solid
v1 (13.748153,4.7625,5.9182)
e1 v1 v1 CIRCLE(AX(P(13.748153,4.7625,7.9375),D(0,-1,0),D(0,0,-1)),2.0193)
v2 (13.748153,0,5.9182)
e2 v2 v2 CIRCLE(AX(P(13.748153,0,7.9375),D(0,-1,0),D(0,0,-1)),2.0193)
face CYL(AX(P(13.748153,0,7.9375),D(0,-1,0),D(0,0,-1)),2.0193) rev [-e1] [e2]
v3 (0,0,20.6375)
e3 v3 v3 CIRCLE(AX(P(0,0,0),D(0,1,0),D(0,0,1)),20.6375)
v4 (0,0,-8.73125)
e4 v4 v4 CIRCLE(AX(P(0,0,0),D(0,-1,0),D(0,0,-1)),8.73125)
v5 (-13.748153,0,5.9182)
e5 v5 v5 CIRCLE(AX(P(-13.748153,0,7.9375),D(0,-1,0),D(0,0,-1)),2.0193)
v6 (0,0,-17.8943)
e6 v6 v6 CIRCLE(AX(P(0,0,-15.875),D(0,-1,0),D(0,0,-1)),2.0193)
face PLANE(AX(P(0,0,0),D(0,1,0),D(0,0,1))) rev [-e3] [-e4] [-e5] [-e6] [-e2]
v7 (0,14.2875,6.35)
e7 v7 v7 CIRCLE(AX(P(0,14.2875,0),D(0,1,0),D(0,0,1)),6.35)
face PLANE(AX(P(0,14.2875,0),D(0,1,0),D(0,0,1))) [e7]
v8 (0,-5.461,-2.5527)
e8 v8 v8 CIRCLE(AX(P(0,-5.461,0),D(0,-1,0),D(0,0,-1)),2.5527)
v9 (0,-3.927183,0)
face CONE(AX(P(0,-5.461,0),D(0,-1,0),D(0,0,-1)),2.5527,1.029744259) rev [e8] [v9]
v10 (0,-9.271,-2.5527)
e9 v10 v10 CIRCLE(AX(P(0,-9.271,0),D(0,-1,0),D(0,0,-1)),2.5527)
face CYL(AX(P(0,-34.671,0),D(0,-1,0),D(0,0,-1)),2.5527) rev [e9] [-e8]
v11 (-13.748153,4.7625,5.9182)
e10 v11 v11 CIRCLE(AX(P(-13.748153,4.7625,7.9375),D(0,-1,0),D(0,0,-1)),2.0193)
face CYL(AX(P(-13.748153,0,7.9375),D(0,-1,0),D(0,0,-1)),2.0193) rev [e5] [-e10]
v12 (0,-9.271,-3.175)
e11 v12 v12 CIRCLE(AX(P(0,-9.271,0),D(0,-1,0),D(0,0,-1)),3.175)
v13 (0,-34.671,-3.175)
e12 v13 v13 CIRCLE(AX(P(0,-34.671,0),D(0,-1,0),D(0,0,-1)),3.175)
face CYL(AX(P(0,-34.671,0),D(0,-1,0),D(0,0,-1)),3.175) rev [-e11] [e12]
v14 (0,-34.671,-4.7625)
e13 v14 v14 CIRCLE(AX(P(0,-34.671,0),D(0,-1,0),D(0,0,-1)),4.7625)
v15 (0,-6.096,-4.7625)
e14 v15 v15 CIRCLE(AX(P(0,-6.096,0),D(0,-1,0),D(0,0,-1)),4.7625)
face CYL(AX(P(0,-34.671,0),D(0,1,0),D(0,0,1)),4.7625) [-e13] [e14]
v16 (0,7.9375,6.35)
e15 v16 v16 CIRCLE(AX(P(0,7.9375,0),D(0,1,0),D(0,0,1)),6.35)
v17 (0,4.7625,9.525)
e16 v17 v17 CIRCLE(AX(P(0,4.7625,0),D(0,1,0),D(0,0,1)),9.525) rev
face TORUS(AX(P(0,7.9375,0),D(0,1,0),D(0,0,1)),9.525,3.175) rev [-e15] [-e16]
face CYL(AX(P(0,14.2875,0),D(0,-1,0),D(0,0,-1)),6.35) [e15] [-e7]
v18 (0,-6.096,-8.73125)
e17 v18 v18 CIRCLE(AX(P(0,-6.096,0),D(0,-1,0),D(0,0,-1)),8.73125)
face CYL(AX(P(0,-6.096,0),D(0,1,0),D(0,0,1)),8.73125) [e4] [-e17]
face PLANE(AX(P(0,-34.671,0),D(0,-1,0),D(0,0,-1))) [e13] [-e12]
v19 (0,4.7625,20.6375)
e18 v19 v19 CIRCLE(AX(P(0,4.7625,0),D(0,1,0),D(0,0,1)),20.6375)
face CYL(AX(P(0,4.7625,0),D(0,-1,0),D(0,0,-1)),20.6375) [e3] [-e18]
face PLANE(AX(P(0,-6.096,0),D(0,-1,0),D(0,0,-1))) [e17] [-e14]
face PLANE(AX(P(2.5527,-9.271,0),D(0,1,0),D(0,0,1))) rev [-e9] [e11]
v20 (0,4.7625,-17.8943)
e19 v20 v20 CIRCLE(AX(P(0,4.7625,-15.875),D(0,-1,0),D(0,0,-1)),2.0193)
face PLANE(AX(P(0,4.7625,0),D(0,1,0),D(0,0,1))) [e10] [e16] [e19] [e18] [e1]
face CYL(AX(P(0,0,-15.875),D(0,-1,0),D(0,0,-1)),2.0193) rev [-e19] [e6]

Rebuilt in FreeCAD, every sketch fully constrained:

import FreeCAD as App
import Part
import Sketcher
Q = App.Units.Quantity


def edges_at(feature, points):
    """Names of the edges that pass closest to the given points."""
    edges = feature.Shape.Edges
    near = lambda p: min(range(len(edges)), key=lambda i: edges[i].distToShape(Part.Vertex(*p))[0])
    return sorted({f"Edge{near(p) + 1}" for p in points})

doc = App.newDocument("Part")
body = doc.addObject("PartDesign::Body", "Body")

sketch1 = body.newObject("Sketcher::SketchObject", "Sketch")
sketch1.AttachmentSupport = (doc.getObject("XZ_Plane"), [""])
sketch1.MapMode = "FlatFace"
sketch1.addGeometry(Part.Circle(App.Vector(0, 0, 0), App.Vector(0, 0, 1), 20.6375), False)
sketch1.addConstraint([
    Sketcher.Constraint("Coincident", 0, 3, -1, 1),
    Sketcher.Constraint("Diameter", 0, Q("1.625 in")),
])
pad1 = body.newObject("PartDesign::Pad", "Pad")
pad1.Profile = sketch1
pad1.Length = Q("0.1875 in")
pad1.Reversed = True

sketch2 = body.newObject("Sketcher::SketchObject", "Sketch001")
sketch2.AttachmentSupport = (doc.getObject("XZ_Plane"), [""])
sketch2.MapMode = "FlatFace"
sketch2.addGeometry(Part.Circle(App.Vector(0, 0, 0), App.Vector(0, 0, 1), 8.73125), False)
sketch2.addConstraint([
    Sketcher.Constraint("Coincident", 0, 3, -1, 1),
    Sketcher.Constraint("Diameter", 0, Q("0.6875 in")),
])
pad2 = body.newObject("PartDesign::Pad", "Pad001")
pad2.Profile = sketch2
pad2.Length = Q("0.24 in")

sketch3 = body.newObject("Sketcher::SketchObject", "Sketch002")
sketch3.AttachmentSupport = (doc.getObject("XZ_Plane"), [""])
sketch3.MapMode = "FlatFace"
sketch3.AttachmentOffset = App.Placement(App.Vector(0, 0, 0.24 * 25.4), App.Rotation())
sketch3.addGeometry(Part.Circle(App.Vector(0, 0, 0), App.Vector(0, 0, 1), 4.7625), False)
sketch3.addConstraint([
    Sketcher.Constraint("Coincident", 0, 3, -1, 1),
    Sketcher.Constraint("Diameter", 0, Q("0.375 in")),
])
pad3 = body.newObject("PartDesign::Pad", "Pad002")
pad3.Profile = sketch3
pad3.Length = Q("1.125 in")

sketch4 = body.newObject("Sketcher::SketchObject", "Sketch003")
sketch4.AttachmentSupport = (doc.getObject("XZ_Plane"), [""])
sketch4.MapMode = "FlatFace"
sketch4.AttachmentOffset = App.Placement(App.Vector(0, 0, 1.365 * 25.4), App.Rotation())
sketch4.addGeometry(Part.Circle(App.Vector(0, 0, 0), App.Vector(0, 0, 1), 2.5527), False)
sketch4.addConstraint([
    Sketcher.Constraint("Coincident", 0, 3, -1, 1),
    Sketcher.Constraint("Diameter", 0, Q("0.201 in")),
])
doc.recompute()
hole = body.newObject("PartDesign::Hole", "Hole")
hole.Profile = sketch4
hole.ThreadType = "None"
hole.Diameter = Q("0.201 in")
hole.DepthType = "Dimension"
hole.Depth = Q("1.15 in")
hole.DrillPoint = "Angled"
hole.DrillPointAngle = 118
hole.HoleCutType = "Counterbore"
hole.HoleCutDiameter = Q("0.25 in")
hole.HoleCutDepth = Q("1 in")

sketch5 = body.newObject("Sketcher::SketchObject", "Sketch004")
sketch5.AttachmentSupport = (doc.getObject("XZ_Plane"), [""])
sketch5.MapMode = "FlatFace"
sketch5.addGeometry([
    Part.Circle(App.Vector(13.748153, 7.9375, 0), App.Vector(0, 0, 1), 2.0193),
    Part.Circle(App.Vector(0, -15.875, 0), App.Vector(0, 0, 1), 2.0193),
    Part.Circle(App.Vector(-13.748153, 7.9375, 0), App.Vector(0, 0, 1), 2.0193),
], False)
sketch5.addConstraint([
    Sketcher.Constraint("Equal", 0, 1),
    Sketcher.Constraint("Equal", 1, 2),
    Sketcher.Constraint("Symmetric", 0, 3, 2, 3, -2),
    Sketcher.Constraint("PointOnObject", 1, 3, -2),
    Sketcher.Constraint("Diameter", 0, Q("0.159 in")),
    Sketcher.Constraint("DistanceY", -1, 1, 0, 3, Q("0.3125 in")),
    Sketcher.Constraint("DistanceY", 1, 3, -1, 1, Q("0.625 in")),
    Sketcher.Constraint("DistanceX", -1, 1, 0, 3, 13.748153),
])
doc.recompute()
hole2 = body.newObject("PartDesign::Hole", "Hole001")
hole2.Profile = sketch5
hole2.ThreadType = "None"
hole2.Diameter = Q("0.159 in")
hole2.DepthType = "ThroughAll"

sketch6 = body.newObject("Sketcher::SketchObject", "Sketch005")
sketch6.AttachmentSupport = (doc.getObject("XZ_Plane"), [""])
sketch6.MapMode = "FlatFace"
sketch6.AttachmentOffset = App.Placement(App.Vector(0, 0, -0.1875 * 25.4), App.Rotation())
sketch6.addGeometry(Part.Circle(App.Vector(0, 0, 0), App.Vector(0, 0, 1), 6.35), False)
sketch6.addConstraint([
    Sketcher.Constraint("Coincident", 0, 3, -1, 1),
    Sketcher.Constraint("Diameter", 0, Q("0.5 in")),
])
pad4 = body.newObject("PartDesign::Pad", "Pad003")
pad4.Profile = sketch6
pad4.Length = Q("0.375 in")
pad4.Reversed = True
doc.recompute()

fillet = body.newObject("PartDesign::Fillet", "Fillet")
fillet.Base = (pad4, edges_at(pad4, [(-6.35, 4.763, 0)]))
fillet.Radius = Q("0.125 in")

doc.recompute()
